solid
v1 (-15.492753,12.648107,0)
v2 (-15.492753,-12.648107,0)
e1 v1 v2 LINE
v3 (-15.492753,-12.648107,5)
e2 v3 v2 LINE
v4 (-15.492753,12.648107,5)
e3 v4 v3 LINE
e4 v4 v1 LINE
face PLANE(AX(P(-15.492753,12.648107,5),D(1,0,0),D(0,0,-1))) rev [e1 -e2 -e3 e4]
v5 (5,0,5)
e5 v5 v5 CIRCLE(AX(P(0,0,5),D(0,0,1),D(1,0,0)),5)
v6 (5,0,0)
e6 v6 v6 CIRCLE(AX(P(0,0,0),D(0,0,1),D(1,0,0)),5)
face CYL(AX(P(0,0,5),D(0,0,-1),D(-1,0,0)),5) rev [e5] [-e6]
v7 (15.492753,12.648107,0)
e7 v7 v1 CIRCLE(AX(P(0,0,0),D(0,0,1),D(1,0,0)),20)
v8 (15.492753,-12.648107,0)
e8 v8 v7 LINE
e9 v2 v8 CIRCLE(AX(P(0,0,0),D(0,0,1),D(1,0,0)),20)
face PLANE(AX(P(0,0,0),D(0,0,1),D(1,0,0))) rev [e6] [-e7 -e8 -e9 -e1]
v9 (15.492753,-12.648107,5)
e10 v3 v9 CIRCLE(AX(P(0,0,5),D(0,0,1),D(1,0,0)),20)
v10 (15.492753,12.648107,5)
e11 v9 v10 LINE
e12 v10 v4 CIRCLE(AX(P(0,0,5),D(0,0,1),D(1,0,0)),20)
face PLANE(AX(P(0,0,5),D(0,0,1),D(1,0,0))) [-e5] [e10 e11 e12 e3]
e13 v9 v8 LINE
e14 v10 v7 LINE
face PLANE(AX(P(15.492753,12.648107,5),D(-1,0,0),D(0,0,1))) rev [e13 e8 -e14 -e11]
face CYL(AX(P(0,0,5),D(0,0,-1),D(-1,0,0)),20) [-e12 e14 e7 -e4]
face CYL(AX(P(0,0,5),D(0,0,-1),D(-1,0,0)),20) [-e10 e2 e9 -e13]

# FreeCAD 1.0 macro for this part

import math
import FreeCAD as App
import Part
import Sketcher

V = App.Vector

doc = App.newDocument("Part")
body = doc.addObject("PartDesign::Body", "Body")

# Sketch on XY plane
sketch1 = body.newObject("Sketcher::SketchObject", "Sketch")
sketch1.AttachmentSupport = (doc.getObject("XY_Plane"), [""])
sketch1.MapMode = "FlatFace"
sketch1.addGeometry([
    Part.LineSegment(V(-15.492753, 12.648107, 0), V(-15.492753, -12.648107, 0)),  # 0
    Part.ArcOfCircle(Part.Circle(V(0, 0, 0), V(0, 0, 1), 20), math.radians(-140.772192), math.radians(-39.227808)),  # 1
    Part.LineSegment(V(15.492753, -12.648107, 0), V(15.492753, 12.648107, 0)),  # 2
    Part.ArcOfCircle(Part.Circle(V(0, 0, 0), V(0, 0, 1), 20), math.radians(39.227808), math.radians(140.772192)),  # 3
    Part.Circle(V(0, 0, 0), V(0, 0, 1), 5),  # 4
], False)
sketch1.addConstraint([
    Sketcher.Constraint("Coincident", 0, 2, 1, 1),
    Sketcher.Constraint("Coincident", 1, 2, 2, 1),
    Sketcher.Constraint("Coincident", 2, 2, 3, 1),
    Sketcher.Constraint("Coincident", 3, 2, 0, 1),
    Sketcher.Constraint("Vertical", 0),
    Sketcher.Constraint("Vertical", 2),
    Sketcher.Constraint("Coincident", 1, 3, -1, 1),
    Sketcher.Constraint("Coincident", 3, 3, -1, 1),
    Sketcher.Constraint("Coincident", 4, 3, -1, 1),
    Sketcher.Constraint("Equal", 1, 3),
    Sketcher.Constraint("Horizontal", 0, 2, 1, 2),
    Sketcher.Constraint("Diameter", 4, 10.0),
    Sketcher.Constraint("Radius", 1, 20.0),
    Sketcher.Constraint("DistanceY", 0, 2, 0, 1, 25.296214),
])
pad1 = body.newObject("PartDesign::Pad", "Pad")
pad1.Profile = sketch1
pad1.Length = 5

doc.recompute()
